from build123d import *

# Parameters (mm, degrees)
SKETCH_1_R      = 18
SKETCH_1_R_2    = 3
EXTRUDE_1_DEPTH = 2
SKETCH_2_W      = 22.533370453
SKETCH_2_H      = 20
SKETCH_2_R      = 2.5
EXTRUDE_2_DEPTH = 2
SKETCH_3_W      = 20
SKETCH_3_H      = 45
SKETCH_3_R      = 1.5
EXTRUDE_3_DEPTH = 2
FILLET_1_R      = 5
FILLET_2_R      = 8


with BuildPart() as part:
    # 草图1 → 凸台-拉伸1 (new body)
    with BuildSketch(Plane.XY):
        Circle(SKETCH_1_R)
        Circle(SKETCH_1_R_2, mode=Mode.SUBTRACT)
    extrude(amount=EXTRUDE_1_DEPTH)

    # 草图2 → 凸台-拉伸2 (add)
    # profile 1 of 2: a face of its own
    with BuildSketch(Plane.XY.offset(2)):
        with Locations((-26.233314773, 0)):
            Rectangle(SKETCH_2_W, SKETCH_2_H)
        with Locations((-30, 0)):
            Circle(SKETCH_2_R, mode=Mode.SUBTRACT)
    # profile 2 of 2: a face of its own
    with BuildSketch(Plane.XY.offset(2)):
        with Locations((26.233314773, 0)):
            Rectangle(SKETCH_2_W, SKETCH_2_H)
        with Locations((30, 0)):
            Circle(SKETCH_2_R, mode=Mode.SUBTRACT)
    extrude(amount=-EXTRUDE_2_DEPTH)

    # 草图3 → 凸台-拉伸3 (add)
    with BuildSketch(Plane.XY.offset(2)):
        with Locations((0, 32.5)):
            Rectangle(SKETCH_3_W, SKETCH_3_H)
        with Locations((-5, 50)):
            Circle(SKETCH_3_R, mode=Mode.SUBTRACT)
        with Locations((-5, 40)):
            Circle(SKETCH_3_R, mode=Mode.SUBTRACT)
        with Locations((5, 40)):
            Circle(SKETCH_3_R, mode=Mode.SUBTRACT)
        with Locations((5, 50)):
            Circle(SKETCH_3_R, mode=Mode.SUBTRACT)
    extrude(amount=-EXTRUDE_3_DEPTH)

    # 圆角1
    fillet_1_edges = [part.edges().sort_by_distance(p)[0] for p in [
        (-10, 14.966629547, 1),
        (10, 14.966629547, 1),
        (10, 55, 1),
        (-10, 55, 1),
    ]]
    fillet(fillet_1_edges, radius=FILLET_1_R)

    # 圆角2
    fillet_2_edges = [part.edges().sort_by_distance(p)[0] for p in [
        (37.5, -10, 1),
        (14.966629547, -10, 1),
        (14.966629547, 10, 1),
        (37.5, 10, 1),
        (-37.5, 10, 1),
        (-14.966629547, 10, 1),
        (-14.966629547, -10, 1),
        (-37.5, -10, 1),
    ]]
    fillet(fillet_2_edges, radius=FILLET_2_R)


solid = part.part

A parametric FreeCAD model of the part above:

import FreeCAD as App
import Part
import Sketcher
from FreeCAD import Vector


def edges_at(feature, points):
    """Names of the edges that pass closest to the given points."""
    edges = feature.Shape.Edges
    near = lambda p: min(range(len(edges)), key=lambda i: edges[i].distToShape(Part.Vertex(*p))[0])
    return sorted({f"Edge{near(p) + 1}" for p in points})

doc = App.newDocument("Part")
body = doc.addObject("PartDesign::Body", "Body")

sketch1 = body.newObject("Sketcher::SketchObject", "Sketch")
sketch1.AttachmentSupport = (doc.getObject("XY_Plane"), [""])
sketch1.MapMode = "FlatFace"
sketch1.addGeometry(Part.Circle(Vector(0, 0, 0), Vector(0, 0, 1), 18), False)
sketch1.addGeometry(Part.Circle(Vector(0, 0, 0), Vector(0, 0, 1), 3), False)
sketch1.addConstraint(Sketcher.Constraint("Coincident", 0, 3, -1, 1))
sketch1.addConstraint(Sketcher.Constraint("Coincident", 1, 3, -1, 1))
sketch1.addConstraint(Sketcher.Constraint("Diameter", 0, 36.0))
sketch1.addConstraint(Sketcher.Constraint("Diameter", 1, 6.0))
pad1 = body.newObject("PartDesign::Pad", "Pad")
pad1.Profile = sketch1
pad1.Length = 2

sketch2 = body.newObject("Sketcher::SketchObject", "Sketch001")
sketch2.AttachmentSupport = (doc.getObject("XY_Plane"), [""])
sketch2.MapMode = "FlatFace"
sketch2.AttachmentOffset = App.Placement(Vector(0, 0, 2), App.Rotation())
sketch2.addGeometry(Part.LineSegment(Vector(-37.5, 10, 0), Vector(-37.5, -10, 0)), False)
sketch2.addGeometry(Part.LineSegment(Vector(-37.5, -10, 0), Vector(-15, -10, 0)), False)
sketch2.addGeometry(Part.LineSegment(Vector(-15, -10, 0), Vector(-15, 10, 0)), False)
sketch2.addGeometry(Part.LineSegment(Vector(-15, 10, 0), Vector(-37.5, 10, 0)), False)
sketch2.addGeometry(Part.Circle(Vector(-30, 0, 0), Vector(0, 0, 1), 2.5), False)
sketch2.addGeometry(Part.LineSegment(Vector(15, 10, 0), Vector(15, -10, 0)), False)
sketch2.addGeometry(Part.LineSegment(Vector(15, -10, 0), Vector(37.5, -10, 0)), False)
sketch2.addGeometry(Part.LineSegment(Vector(37.5, -10, 0), Vector(37.5, 10, 0)), False)
sketch2.addGeometry(Part.LineSegment(Vector(37.5, 10, 0), Vector(15, 10, 0)), False)
sketch2.addGeometry(Part.Circle(Vector(30, 0, 0), Vector(0, 0, 1), 2.5), False)
sketch2.addConstraint(Sketcher.Constraint("Coincident", 0, 2, 1, 1))
sketch2.addConstraint(Sketcher.Constraint("Coincident", 1, 2, 2, 1))
sketch2.addConstraint(Sketcher.Constraint("Coincident", 2, 2, 3, 1))
sketch2.addConstraint(Sketcher.Constraint("Coincident", 3, 2, 0, 1))
sketch2.addConstraint(Sketcher.Constraint("Coincident", 5, 2, 6, 1))
sketch2.addConstraint(Sketcher.Constraint("Coincident", 6, 2, 7, 1))
sketch2.addConstraint(Sketcher.Constraint("Coincident", 7, 2, 8, 1))
sketch2.addConstraint(Sketcher.Constraint("Coincident", 8, 2, 5, 1))
sketch2.addConstraint(Sketcher.Constraint("Vertical", 0))
sketch2.addConstraint(Sketcher.Constraint("Horizontal", 1))
sketch2.addConstraint(Sketcher.Constraint("Vertical", 2))
sketch2.addConstraint(Sketcher.Constraint("Horizontal", 3))
sketch2.addConstraint(Sketcher.Constraint("Vertical", 5))
sketch2.addConstraint(Sketcher.Constraint("Horizontal", 6))
sketch2.addConstraint(Sketcher.Constraint("Vertical", 7))
sketch2.addConstraint(Sketcher.Constraint("Horizontal", 8))
sketch2.addConstraint(Sketcher.Constraint("Equal", 4, 9))
sketch2.addConstraint(Sketcher.Constraint("Symmetric", 4, 3, 9, 3, -1, 1))
sketch2.addConstraint(Sketcher.Constraint("Symmetric", 2, 2, 5, 2, -1, 1))
sketch2.addConstraint(Sketcher.Constraint("Symmetric", 0, 2, 7, 2, -1, 1))
sketch2.addConstraint(Sketcher.Constraint("PointOnObject", 4, 3, -1))
sketch2.addConstraint(Sketcher.Constraint("Horizontal", 1, 2, 5, 2))
sketch2.addConstraint(Sketcher.Constraint("Diameter", 4, 5.0))
sketch2.addConstraint(Sketcher.Constraint("DistanceY", 0, 2, 0, 1, 20.0))
sketch2.addConstraint(Sketcher.Constraint("DistanceX", 4, 3, -1, 1, 30.0))
sketch2.addConstraint(Sketcher.Constraint("DistanceX", 0, 2, -1, 1, 37.5))
sketch2.addConstraint(Sketcher.Constraint("DistanceX", 1, 1, 1, 2, 22.53337))
pad2 = body.newObject("PartDesign::Pad", "Pad001")
pad2.Profile = sketch2
pad2.Length = 2
pad2.Reversed = True

sketch3 = body.newObject("Sketcher::SketchObject", "Sketch002")
sketch3.AttachmentSupport = (doc.getObject("XY_Plane"), [""])
sketch3.MapMode = "FlatFace"
sketch3.AttachmentOffset = App.Placement(Vector(0, 0, 2), App.Rotation())
sketch3.addGeometry(Part.LineSegment(Vector(-10, 55, 0), Vector(-10, 10, 0)), False)
sketch3.addGeometry(Part.LineSegment(Vector(-10, 10, 0), Vector(10, 10, 0)), False)
sketch3.addGeometry(Part.LineSegment(Vector(10, 10, 0), Vector(10, 55, 0)), False)
sketch3.addGeometry(Part.LineSegment(Vector(10, 55, 0), Vector(-10, 55, 0)), False)
sketch3.addGeometry(Part.Circle(Vector(-5, 40, 0), Vector(0, 0, 1), 1.5), False)
sketch3.addGeometry(Part.Circle(Vector(5, 40, 0), Vector(0, 0, 1), 1.5), False)
sketch3.addGeometry(Part.Circle(Vector(-5, 50, 0), Vector(0, 0, 1), 1.5), False)
sketch3.addGeometry(Part.Circle(Vector(5, 50, 0), Vector(0, 0, 1), 1.5), False)
sketch3.addConstraint(Sketcher.Constraint("Coincident", 0, 2, 1, 1))
sketch3.addConstraint(Sketcher.Constraint("Coincident", 1, 2, 2, 1))
sketch3.addConstraint(Sketcher.Constraint("Coincident", 2, 2, 3, 1))
sketch3.addConstraint(Sketcher.Constraint("Coincident", 3, 2, 0, 1))
sketch3.addConstraint(Sketcher.Constraint("Vertical", 0))
sketch3.addConstraint(Sketcher.Constraint("Horizontal", 1))
sketch3.addConstraint(Sketcher.Constraint("Vertical", 2))
sketch3.addConstraint(Sketcher.Constraint("Horizontal", 3))
sketch3.addConstraint(Sketcher.Constraint("Equal", 4, 5))
sketch3.addConstraint(Sketcher.Constraint("Equal", 5, 6))
sketch3.addConstraint(Sketcher.Constraint("Equal", 6, 7))
sketch3.addConstraint(Sketcher.Constraint("Symmetric", 4, 3, 5, 3, -2))
sketch3.addConstraint(Sketcher.Constraint("Symmetric", 6, 3, 7, 3, -2))
sketch3.addConstraint(Sketcher.Constraint("Vertical", 4, 3, 6, 3))
sketch3.addConstraint(Sketcher.Constraint("Diameter", 4, 3.0))
sketch3.addConstraint(Sketcher.Constraint("DistanceX", 1, 1, 1, 2, 20.0))
sketch3.addConstraint(Sketcher.Constraint("DistanceY", 0, 2, 0, 1, 45.0))
sketch3.addConstraint(Sketcher.Constraint("DistanceX", 4, 3, -1, 1, 5.0))
sketch3.addConstraint(Sketcher.Constraint("DistanceY", -1, 1, 4, 3, 40.0))
sketch3.addConstraint(Sketcher.Constraint("DistanceY", -1, 1, 6, 3, 50.0))
sketch3.addConstraint(Sketcher.Constraint("DistanceX", 0, 2, -1, 1, 10.0))
sketch3.addConstraint(Sketcher.Constraint("DistanceY", -1, 1, 0, 2, 10.0))
pad3 = body.newObject("PartDesign::Pad", "Pad002")
pad3.Profile = sketch3
pad3.Length = 2
pad3.Reversed = True
doc.recompute()

fillet = body.newObject("PartDesign::Fillet", "Fillet")
fillet.Base = (pad3, edges_at(pad3, [
    (-10, 14.967, 1),
    (10, 14.967, 1),
    (10, 55, 1),
    (-10, 55, 1),
]))
fillet.Radius = 5
doc.recompute()

fillet2 = body.newObject("PartDesign::Fillet", "Fillet001")
fillet2.Base = (fillet, edges_at(fillet, [
    (37.5, -10, 1),
    (14.967, -10, 1),
    (14.967, 10, 1),
    (37.5, 10, 1),
    (-37.5, 10, 1),
    (-14.967, 10, 1),
    (-14.967, -10, 1),
    (-37.5, -10, 1),
]))
fillet2.Radius = 8

doc.recompute()
